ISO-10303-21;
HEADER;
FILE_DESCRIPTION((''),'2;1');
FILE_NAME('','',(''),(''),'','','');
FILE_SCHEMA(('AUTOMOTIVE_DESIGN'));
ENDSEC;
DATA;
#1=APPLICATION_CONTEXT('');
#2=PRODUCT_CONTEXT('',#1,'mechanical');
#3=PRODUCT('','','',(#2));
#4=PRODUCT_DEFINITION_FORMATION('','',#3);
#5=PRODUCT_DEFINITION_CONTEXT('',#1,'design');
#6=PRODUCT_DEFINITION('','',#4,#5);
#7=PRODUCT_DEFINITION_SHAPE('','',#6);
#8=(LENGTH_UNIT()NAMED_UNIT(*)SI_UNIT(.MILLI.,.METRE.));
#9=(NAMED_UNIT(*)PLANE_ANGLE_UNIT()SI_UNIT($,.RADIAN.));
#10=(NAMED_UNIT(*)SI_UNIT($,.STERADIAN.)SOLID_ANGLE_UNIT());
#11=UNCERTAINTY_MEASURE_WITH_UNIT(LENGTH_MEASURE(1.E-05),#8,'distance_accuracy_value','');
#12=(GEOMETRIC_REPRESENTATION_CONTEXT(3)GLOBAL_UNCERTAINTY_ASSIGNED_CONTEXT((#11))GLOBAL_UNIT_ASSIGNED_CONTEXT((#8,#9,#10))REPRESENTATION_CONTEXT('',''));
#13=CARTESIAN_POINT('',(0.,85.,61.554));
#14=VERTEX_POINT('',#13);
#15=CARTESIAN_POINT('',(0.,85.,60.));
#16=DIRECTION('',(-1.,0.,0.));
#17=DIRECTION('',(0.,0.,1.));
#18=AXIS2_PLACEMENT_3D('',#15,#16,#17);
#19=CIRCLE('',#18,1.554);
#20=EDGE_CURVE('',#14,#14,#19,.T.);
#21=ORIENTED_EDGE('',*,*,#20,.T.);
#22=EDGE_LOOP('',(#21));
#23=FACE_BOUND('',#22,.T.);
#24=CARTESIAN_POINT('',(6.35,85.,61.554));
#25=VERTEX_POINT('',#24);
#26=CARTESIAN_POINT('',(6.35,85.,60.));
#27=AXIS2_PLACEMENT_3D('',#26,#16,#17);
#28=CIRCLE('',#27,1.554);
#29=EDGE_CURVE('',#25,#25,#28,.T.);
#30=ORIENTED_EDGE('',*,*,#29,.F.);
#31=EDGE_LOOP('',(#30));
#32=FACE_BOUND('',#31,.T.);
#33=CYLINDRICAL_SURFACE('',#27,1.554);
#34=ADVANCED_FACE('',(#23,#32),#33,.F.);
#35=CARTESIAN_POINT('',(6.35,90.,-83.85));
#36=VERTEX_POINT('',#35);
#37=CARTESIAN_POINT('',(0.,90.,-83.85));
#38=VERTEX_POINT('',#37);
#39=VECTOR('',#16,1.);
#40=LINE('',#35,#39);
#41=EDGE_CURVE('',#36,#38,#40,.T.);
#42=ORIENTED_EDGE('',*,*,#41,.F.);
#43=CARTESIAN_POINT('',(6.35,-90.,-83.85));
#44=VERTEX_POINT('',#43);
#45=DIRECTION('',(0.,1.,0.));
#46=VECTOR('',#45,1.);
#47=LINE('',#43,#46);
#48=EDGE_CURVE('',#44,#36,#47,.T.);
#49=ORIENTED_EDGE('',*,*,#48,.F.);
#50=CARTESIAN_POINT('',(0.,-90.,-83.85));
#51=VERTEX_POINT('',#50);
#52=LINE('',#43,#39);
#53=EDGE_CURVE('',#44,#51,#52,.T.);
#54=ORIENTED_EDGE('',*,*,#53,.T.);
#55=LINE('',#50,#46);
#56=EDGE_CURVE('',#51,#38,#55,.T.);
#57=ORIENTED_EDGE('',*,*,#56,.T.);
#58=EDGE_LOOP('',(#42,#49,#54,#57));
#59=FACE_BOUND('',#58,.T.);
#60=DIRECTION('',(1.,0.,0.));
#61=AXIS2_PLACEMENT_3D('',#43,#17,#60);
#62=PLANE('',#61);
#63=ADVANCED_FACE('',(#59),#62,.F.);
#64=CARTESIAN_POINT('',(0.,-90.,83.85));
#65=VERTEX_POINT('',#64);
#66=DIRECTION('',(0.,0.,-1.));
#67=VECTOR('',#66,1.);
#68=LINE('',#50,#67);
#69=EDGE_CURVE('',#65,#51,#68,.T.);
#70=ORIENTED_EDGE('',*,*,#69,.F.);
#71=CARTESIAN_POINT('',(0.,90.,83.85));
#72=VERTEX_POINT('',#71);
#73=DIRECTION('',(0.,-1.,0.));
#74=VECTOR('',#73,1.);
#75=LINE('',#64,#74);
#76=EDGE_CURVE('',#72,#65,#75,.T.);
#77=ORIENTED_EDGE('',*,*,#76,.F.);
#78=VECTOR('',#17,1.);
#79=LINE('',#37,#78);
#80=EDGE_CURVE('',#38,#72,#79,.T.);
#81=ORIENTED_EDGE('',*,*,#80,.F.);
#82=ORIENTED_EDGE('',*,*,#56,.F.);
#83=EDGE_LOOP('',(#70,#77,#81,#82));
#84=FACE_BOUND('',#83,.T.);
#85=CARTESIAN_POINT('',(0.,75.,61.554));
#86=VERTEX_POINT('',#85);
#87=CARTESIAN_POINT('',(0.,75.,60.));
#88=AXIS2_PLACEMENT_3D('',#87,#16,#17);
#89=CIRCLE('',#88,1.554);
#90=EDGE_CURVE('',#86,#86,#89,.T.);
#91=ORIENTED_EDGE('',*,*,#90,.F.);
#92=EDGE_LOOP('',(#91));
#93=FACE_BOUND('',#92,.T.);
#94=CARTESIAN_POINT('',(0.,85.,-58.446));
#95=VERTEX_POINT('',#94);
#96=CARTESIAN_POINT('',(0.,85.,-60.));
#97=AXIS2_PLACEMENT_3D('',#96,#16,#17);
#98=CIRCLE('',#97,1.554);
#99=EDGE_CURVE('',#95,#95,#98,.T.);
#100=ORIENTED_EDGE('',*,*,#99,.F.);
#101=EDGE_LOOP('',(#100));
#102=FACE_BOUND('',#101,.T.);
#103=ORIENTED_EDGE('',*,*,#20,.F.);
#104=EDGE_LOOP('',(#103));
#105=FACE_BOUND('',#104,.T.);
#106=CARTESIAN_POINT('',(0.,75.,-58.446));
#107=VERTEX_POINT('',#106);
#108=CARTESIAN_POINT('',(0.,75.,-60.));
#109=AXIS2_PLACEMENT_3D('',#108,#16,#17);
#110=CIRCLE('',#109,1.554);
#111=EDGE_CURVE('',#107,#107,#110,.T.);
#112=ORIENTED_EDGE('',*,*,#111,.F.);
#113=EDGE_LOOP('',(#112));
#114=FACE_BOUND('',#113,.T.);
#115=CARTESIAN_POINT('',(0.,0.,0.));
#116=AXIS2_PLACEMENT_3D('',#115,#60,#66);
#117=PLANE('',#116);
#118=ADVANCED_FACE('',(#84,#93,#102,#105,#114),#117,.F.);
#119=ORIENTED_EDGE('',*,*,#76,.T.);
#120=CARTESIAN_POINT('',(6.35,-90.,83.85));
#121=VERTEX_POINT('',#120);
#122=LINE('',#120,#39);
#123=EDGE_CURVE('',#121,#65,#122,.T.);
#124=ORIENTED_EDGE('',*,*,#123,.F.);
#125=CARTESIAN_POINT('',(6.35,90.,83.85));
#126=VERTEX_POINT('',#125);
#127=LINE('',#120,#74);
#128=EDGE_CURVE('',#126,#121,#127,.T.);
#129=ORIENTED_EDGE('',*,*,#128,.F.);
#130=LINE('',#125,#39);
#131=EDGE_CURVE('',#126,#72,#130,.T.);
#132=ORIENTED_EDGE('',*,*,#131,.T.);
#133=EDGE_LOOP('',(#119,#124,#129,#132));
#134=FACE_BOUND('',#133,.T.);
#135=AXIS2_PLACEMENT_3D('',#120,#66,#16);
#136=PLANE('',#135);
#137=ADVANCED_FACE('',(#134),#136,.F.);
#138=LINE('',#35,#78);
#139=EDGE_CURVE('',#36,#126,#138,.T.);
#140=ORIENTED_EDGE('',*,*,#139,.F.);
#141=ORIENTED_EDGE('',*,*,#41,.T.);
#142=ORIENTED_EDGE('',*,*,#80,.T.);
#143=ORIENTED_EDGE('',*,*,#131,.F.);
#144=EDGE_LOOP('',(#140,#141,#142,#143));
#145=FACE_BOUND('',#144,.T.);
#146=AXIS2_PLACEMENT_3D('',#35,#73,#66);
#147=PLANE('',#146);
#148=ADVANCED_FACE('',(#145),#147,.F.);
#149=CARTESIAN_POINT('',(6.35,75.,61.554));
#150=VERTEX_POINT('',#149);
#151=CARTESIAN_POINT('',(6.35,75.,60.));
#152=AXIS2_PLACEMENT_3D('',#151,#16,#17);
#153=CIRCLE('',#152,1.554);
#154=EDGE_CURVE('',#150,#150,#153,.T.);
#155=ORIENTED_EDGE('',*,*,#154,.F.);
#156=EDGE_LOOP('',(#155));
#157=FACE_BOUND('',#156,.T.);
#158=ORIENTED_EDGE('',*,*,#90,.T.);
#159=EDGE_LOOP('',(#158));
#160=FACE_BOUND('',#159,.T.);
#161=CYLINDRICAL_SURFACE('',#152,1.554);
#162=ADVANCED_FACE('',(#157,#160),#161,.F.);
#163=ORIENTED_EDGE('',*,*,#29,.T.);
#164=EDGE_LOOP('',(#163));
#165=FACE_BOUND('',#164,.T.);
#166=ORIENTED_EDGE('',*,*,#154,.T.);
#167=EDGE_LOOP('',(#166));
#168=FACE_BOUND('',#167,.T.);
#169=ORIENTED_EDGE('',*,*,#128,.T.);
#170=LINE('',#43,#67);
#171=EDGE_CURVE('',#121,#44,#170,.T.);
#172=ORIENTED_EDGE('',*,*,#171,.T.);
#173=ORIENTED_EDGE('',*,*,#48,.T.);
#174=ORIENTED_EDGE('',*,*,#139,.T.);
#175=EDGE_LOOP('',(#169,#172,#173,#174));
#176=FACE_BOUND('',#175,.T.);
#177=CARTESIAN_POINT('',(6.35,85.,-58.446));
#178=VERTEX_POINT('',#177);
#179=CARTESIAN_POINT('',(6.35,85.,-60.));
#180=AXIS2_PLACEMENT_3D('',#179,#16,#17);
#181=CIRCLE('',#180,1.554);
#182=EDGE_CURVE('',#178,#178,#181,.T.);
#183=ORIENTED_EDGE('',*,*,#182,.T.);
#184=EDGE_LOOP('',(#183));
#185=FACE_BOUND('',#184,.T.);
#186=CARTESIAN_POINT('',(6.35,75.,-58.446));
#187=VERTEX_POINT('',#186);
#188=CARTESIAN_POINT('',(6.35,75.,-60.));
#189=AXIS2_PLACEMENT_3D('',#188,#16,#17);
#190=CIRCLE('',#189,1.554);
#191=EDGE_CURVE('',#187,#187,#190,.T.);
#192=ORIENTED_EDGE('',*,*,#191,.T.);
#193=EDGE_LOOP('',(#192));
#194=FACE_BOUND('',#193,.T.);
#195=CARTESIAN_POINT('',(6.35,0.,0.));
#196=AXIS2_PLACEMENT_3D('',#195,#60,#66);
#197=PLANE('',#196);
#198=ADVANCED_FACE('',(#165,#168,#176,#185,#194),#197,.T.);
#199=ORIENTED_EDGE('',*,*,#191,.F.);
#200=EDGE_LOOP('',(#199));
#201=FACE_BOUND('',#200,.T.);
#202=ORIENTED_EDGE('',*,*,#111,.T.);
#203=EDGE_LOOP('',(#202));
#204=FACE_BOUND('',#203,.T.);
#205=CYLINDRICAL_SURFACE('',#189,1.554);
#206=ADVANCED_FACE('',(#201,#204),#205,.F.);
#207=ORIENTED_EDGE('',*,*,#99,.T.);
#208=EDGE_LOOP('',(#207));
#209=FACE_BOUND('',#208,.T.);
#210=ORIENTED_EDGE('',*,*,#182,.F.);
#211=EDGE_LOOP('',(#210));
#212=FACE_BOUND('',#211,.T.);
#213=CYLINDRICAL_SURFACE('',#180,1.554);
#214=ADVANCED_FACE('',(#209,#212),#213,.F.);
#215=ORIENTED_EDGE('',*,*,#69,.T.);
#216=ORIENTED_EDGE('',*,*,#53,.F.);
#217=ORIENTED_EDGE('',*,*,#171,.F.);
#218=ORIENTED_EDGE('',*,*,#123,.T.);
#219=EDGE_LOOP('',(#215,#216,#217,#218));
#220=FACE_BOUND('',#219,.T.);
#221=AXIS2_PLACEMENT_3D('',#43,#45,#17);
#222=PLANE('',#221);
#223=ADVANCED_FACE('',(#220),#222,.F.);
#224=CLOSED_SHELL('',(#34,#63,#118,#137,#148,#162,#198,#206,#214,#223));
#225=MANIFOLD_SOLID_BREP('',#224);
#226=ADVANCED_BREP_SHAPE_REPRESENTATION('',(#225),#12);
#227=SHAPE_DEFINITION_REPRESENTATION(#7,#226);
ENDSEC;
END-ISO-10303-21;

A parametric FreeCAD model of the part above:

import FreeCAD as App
import Part
import Sketcher

V = App.Vector
Q = App.Units.Quantity

doc = App.newDocument("Part")
body = doc.addObject("PartDesign::Body", "Body")

# Sketch on YZ plane
sketch1 = body.newObject("Sketcher::SketchObject", "Sketch")
sketch1.AttachmentSupport = (doc.getObject("YZ_Plane"), [""])
sketch1.MapMode = "FlatFace"
sketch1.addGeometry(Part.LineSegment(V(90, 84, 0), V(-90, 84, 0)), False)
sketch1.addGeometry(Part.LineSegment(V(-90, 84, 0), V(-90, -84, 0)), False)
sketch1.addGeometry(Part.LineSegment(V(-90, -84, 0), V(90, -84, 0)), False)
sketch1.addGeometry(Part.LineSegment(V(90, -84, 0), V(90, 84, 0)), False)
sketch1.addConstraint(Sketcher.Constraint("Coincident", 0, 2, 1, 1))
sketch1.addConstraint(Sketcher.Constraint("Coincident", 1, 2, 2, 1))
sketch1.addConstraint(Sketcher.Constraint("Coincident", 2, 2, 3, 1))
sketch1.addConstraint(Sketcher.Constraint("Coincident", 3, 2, 0, 1))
sketch1.addConstraint(Sketcher.Constraint("Horizontal", 0))
sketch1.addConstraint(Sketcher.Constraint("Vertical", 1))
sketch1.addConstraint(Sketcher.Constraint("Horizontal", 2))
sketch1.addConstraint(Sketcher.Constraint("Vertical", 3))
sketch1.addConstraint(Sketcher.Constraint("Symmetric", 0, 2, 2, 2, -1, 1))
sketch1.addConstraint(Sketcher.Constraint("DistanceX", 0, 2, 0, 1, Q("180 mm")))
sketch1.addConstraint(Sketcher.Constraint("DistanceY", 1, 2, 1, 1, Q("167.7 mm")))
pad1 = body.newObject("PartDesign::Pad", "Pad")
pad1.Profile = sketch1
pad1.Length = 6.35

# Sketch on YZ plane
sketch2 = body.newObject("Sketcher::SketchObject", "Sketch001")
sketch2.AttachmentSupport = (doc.getObject("YZ_Plane"), [""])
sketch2.MapMode = "FlatFace"
sketch2.addGeometry(Part.Circle(V(85, 60, 0), V(0, 0, 1), 1.6), False)
sketch2.addGeometry(Part.Circle(V(85, -60, 0), V(0, 0, 1), 1.6), False)
sketch2.addGeometry(Part.Circle(V(75, -60, 0), V(0, 0, 1), 1.6), False)
sketch2.addGeometry(Part.Circle(V(75, 60, 0), V(0, 0, 1), 1.6), False)
sketch2.addConstraint(Sketcher.Constraint("Equal", 0, 1))
sketch2.addConstraint(Sketcher.Constraint("Equal", 1, 2))
sketch2.addConstraint(Sketcher.Constraint("Equal", 2, 3))
sketch2.addConstraint(Sketcher.Constraint("Symmetric", 0, 3, 1, 3, -1))
sketch2.addConstraint(Sketcher.Constraint("Symmetric", 2, 3, 3, 3, -1))
sketch2.addConstraint(Sketcher.Constraint("Horizontal", 1, 3, 2, 3))
sketch2.addConstraint(Sketcher.Constraint("Diameter", 0, Q("3.108 mm")))
sketch2.addConstraint(Sketcher.Constraint("DistanceX", -1, 1, 0, 3, Q("85 mm")))
sketch2.addConstraint(Sketcher.Constraint("DistanceY", -1, 1, 0, 3, Q("60 mm")))
sketch2.addConstraint(Sketcher.Constraint("DistanceX", -1, 1, 2, 3, Q("75 mm")))
pocket1 = body.newObject("PartDesign::Pocket", "Pocket")
pocket1.Profile = sketch2
pocket1.Type = "ThroughAll"
pocket1.Reversed = True

doc.recompute()
